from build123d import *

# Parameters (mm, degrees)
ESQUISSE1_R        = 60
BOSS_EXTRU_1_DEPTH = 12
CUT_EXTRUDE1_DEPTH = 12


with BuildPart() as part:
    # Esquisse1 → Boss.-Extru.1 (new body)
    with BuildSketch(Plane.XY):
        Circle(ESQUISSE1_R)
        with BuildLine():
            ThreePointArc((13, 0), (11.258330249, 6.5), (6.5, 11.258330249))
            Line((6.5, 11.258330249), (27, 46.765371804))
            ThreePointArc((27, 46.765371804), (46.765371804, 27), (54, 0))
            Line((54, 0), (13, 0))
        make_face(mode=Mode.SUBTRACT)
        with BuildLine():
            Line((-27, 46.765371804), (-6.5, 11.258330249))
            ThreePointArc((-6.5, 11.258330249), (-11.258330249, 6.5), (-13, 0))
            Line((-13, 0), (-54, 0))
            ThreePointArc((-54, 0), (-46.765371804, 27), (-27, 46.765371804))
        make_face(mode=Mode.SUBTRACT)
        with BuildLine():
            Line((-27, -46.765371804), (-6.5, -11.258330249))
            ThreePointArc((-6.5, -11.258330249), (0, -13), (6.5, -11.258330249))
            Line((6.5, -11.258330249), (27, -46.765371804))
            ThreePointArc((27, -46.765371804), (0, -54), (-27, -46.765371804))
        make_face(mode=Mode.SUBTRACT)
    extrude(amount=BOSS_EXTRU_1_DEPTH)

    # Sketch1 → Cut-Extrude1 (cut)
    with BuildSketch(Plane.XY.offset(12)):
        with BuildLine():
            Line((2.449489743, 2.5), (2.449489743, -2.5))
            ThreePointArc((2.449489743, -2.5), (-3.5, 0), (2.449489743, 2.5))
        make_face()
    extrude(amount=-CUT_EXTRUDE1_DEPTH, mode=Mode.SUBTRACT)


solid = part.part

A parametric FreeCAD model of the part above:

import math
import FreeCAD as App
import Part
import Sketcher
Q = App.Units.Quantity

doc = App.newDocument("Part")
body = doc.addObject("PartDesign::Body", "Body")

sketch1 = doc.addObject("Sketcher::SketchObject", "Sketch")
body.addObject(sketch1)
sketch1.AttachmentSupport = (doc.XY_Plane, [""])
sketch1.MapMode = "FlatFace"
sketch1.addGeometry([
    Part.Circle(App.Vector(0, 0, 0), App.Vector(0, 0, 1), 60),
    Part.ArcOfCircle(Part.Circle(App.Vector(0, 0, 0), App.Vector(0, 0, 1), 54), math.radians(-120), math.radians(-60)),
    Part.LineSegment(App.Vector(-27, -47, 0), App.Vector(-6, -11, 0)),
    Part.ArcOfCircle(Part.Circle(App.Vector(0, 0, 0), App.Vector(0, 0, 1), 13), math.radians(-120), math.radians(-60)),
    Part.LineSegment(App.Vector(6, -11, 0), App.Vector(27, -47, 0)),
    Part.ArcOfCircle(Part.Circle(App.Vector(0, 0, 0), App.Vector(0, 0, 1), 54), math.radians(120), math.radians(180)),
    Part.LineSegment(App.Vector(-27, 47, 0), App.Vector(-6, 11, 0)),
    Part.ArcOfCircle(Part.Circle(App.Vector(0, 0, 0), App.Vector(0, 0, 1), 13), math.radians(120), math.radians(180)),
    Part.LineSegment(App.Vector(-13, 0, 0), App.Vector(-54, 0, 0)),
    Part.LineSegment(App.Vector(54, 0, 0), App.Vector(13, 0, 0)),
    Part.ArcOfCircle(Part.Circle(App.Vector(0, 0, 0), App.Vector(0, 0, 1), 13), math.radians(0), math.radians(60)),
    Part.LineSegment(App.Vector(6, 11, 0), App.Vector(27, 47, 0)),
    Part.ArcOfCircle(Part.Circle(App.Vector(0, 0, 0), App.Vector(0, 0, 1), 54), math.radians(0), math.radians(60)),
], False)
sketch1.addConstraint([
    Sketcher.Constraint("Coincident", 1, 1, 2, 1),
    Sketcher.Constraint("Coincident", 2, 2, 3, 1),
    Sketcher.Constraint("Coincident", 3, 2, 4, 1),
    Sketcher.Constraint("Coincident", 4, 2, 1, 2),
    Sketcher.Constraint("Coincident", 5, 1, 6, 1),
    Sketcher.Constraint("Coincident", 6, 2, 7, 1),
    Sketcher.Constraint("Coincident", 7, 2, 8, 1),
    Sketcher.Constraint("Coincident", 8, 2, 5, 2),
    Sketcher.Constraint("Coincident", 9, 2, 10, 1),
    Sketcher.Constraint("Coincident", 10, 2, 11, 1),
    Sketcher.Constraint("Coincident", 11, 2, 12, 2),
    Sketcher.Constraint("Coincident", 12, 1, 9, 1),
    Sketcher.Constraint("Horizontal", 8),
    Sketcher.Constraint("Horizontal", 9),
    Sketcher.Constraint("Coincident", 0, 3, -1, 1),
    Sketcher.Constraint("Coincident", 1, 3, -1, 1),
    Sketcher.Constraint("Coincident", 3, 3, -1, 1),
    Sketcher.Constraint("Coincident", 5, 3, -1, 1),
    Sketcher.Constraint("Coincident", 7, 3, -1, 1),
    Sketcher.Constraint("Coincident", 10, 3, -1, 1),
    Sketcher.Constraint("Coincident", 12, 3, -1, 1),
    Sketcher.Constraint("Equal", 1, 5),
    Sketcher.Constraint("Equal", 3, 7),
    Sketcher.Constraint("Equal", 7, 10),
    Sketcher.Constraint("Equal", 5, 12),
    Sketcher.Constraint("PointOnObject", 7, 2, -1),
    Sketcher.Constraint("PointOnObject", 9, 2, -1),
    Sketcher.Constraint("Parallel", 4, 6),
    Sketcher.Constraint("Parallel", 2, 11),
    Sketcher.Constraint("Horizontal", 2, 2, 3, 2),
    Sketcher.Constraint("Horizontal", 1, 1, 4, 2),
    Sketcher.Constraint("Horizontal", 6, 2, 10, 2),
    Sketcher.Constraint("Vertical", 1, 1, 5, 1),
    Sketcher.Constraint("Diameter", 0, Q("120 mm")),
    Sketcher.Constraint("Radius", 1, Q("54 mm")),
    Sketcher.Constraint("Radius", 3, Q("13 mm")),
    Sketcher.Constraint("Angle", 2, Q("60 deg")),
    Sketcher.Constraint("DistanceX", 1, 1, -1, 1, Q("27 mm")),
])
pad1 = doc.addObject("PartDesign::Pad", "Pad")
body.addObject(pad1)
pad1.Profile = sketch1
pad1.Length = 12

sketch2 = doc.addObject("Sketcher::SketchObject", "Sketch001")
body.addObject(sketch2)
sketch2.AttachmentSupport = (doc.XY_Plane, [""])
sketch2.MapMode = "FlatFace"
sketch2.AttachmentOffset = App.Placement(App.Vector(0, 0, 12), App.Rotation())
sketch2.addGeometry([
    Part.LineSegment(App.Vector(2.4, -2.5, 0), App.Vector(2.4, 2.5, 0)),
    Part.ArcOfCircle(Part.Circle(App.Vector(0, 0, 0), App.Vector(0, 0, 1), 3.5), math.radians(46), math.radians(314)),
], False)
sketch2.addConstraint([
    Sketcher.Constraint("Coincident", 0, 1, 1, 2),
    Sketcher.Constraint("Coincident", 1, 1, 0, 2),
    Sketcher.Constraint("Vertical", 0),
    Sketcher.Constraint("Coincident", 1, 3, -1, 1),
    Sketcher.Constraint("Radius", 1, Q("3.5 mm")),
    Sketcher.Constraint("DistanceY", 0, 1, 0, 2, Q("5 mm")),
])
pocket1 = doc.addObject("PartDesign::Pocket", "Pocket")
body.addObject(pocket1)
pocket1.Profile = sketch2
pocket1.Length = 12

doc.recompute()
